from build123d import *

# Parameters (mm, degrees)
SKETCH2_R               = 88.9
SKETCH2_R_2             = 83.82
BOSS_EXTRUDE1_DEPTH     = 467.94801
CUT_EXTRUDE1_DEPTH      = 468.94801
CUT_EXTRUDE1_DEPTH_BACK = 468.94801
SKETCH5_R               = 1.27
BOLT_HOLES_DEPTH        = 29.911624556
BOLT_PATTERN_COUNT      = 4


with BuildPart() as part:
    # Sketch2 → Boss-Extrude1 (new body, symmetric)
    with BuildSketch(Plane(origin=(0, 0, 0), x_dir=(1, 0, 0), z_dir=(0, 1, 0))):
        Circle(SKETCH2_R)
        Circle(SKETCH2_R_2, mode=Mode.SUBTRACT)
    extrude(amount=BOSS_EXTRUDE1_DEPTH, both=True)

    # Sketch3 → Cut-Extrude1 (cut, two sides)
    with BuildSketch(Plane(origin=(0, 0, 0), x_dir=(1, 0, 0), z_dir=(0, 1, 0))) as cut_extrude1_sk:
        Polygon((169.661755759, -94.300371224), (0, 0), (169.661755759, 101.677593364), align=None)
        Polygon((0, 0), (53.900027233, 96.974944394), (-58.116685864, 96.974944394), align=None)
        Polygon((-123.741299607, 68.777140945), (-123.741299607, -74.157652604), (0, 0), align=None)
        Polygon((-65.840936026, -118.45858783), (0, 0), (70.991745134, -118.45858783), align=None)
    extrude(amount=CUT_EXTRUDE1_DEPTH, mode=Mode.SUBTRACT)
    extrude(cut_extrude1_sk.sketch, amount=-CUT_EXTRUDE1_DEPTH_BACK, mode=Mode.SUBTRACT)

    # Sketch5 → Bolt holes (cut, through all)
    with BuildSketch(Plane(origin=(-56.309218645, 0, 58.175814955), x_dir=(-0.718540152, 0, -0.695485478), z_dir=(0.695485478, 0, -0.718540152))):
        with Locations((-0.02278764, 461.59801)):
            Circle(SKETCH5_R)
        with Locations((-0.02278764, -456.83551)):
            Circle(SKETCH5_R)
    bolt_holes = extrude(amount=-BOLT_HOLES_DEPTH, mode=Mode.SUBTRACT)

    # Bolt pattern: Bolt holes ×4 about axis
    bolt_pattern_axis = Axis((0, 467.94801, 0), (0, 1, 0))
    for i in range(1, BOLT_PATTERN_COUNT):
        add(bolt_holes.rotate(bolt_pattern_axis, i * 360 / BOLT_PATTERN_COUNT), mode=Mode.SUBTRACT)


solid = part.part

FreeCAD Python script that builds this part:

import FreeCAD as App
import Part
import Sketcher
from FreeCAD import Vector
Q = App.Units.Quantity

doc = App.newDocument("Part")
body = doc.addObject("PartDesign::Body", "Body")
body.AllowCompound = True

# Sketch on XZ plane
sketch1 = body.newObject("Sketcher::SketchObject", "Sketch")
sketch1.AttachmentSupport = (doc.getObject("XZ_Plane"), [""])
sketch1.MapMode = "FlatFace"
sketch1.addGeometry(Part.Circle(Vector(0, 0, 0), Vector(0, 0, 1), 89), False)
sketch1.addGeometry(Part.Circle(Vector(0, 0, 0), Vector(0, 0, 1), 84), False)
sketch1.addConstraint(Sketcher.Constraint("Coincident", 0, 3, -1, 1))
sketch1.addConstraint(Sketcher.Constraint("Coincident", 1, 3, -1, 1))
sketch1.addConstraint(Sketcher.Constraint("Diameter", 0, Q("7 in")))
sketch1.addConstraint(Sketcher.Constraint("Diameter", 1, Q("6.6 in")))
pad1 = body.newObject("PartDesign::Pad", "Pad")
pad1.Profile = sketch1
pad1.Length = Q("36.8463 in")
pad1.Midplane = True

# Sketch on XZ plane
sketch2 = body.newObject("Sketcher::SketchObject", "Sketch001")
sketch2.AttachmentSupport = (doc.getObject("XZ_Plane"), [""])
sketch2.MapMode = "FlatFace"
sketch2.addGeometry(Part.LineSegment(Vector(0, 0, 0), Vector(170, 94, 0)), False)
sketch2.addGeometry(Part.LineSegment(Vector(170, 94, 0), Vector(170, -102, 0)), False)
sketch2.addGeometry(Part.LineSegment(Vector(170, -102, 0), Vector(0, 0, 0)), False)
sketch2.addGeometry(Part.LineSegment(Vector(0, 0, 0), Vector(54, -97, 0)), False)
sketch2.addGeometry(Part.LineSegment(Vector(54, -97, 0), Vector(-58, -97, 0)), False)
sketch2.addGeometry(Part.LineSegment(Vector(-58, -97, 0), Vector(0, 0, 0)), False)
sketch2.addGeometry(Part.LineSegment(Vector(-124, -69, 0), Vector(-124, 74, 0)), False)
sketch2.addGeometry(Part.LineSegment(Vector(-124, 74, 0), Vector(0, 0, 0)), False)
sketch2.addGeometry(Part.LineSegment(Vector(0, 0, 0), Vector(-124, -69, 0)), False)
sketch2.addGeometry(Part.LineSegment(Vector(0, 0, 0), Vector(-66, 118, 0)), False)
sketch2.addGeometry(Part.LineSegment(Vector(-66, 118, 0), Vector(71, 118, 0)), False)
sketch2.addGeometry(Part.LineSegment(Vector(71, 118, 0), Vector(0, 0, 0)), False)
sketch2.addConstraint(Sketcher.Constraint("Coincident", 0, 2, 1, 1))
sketch2.addConstraint(Sketcher.Constraint("Coincident", 1, 2, 2, 1))
sketch2.addConstraint(Sketcher.Constraint("Coincident", 2, 2, 0, 1))
sketch2.addConstraint(Sketcher.Constraint("Coincident", 3, 2, 4, 1))
sketch2.addConstraint(Sketcher.Constraint("Coincident", 4, 2, 5, 1))
sketch2.addConstraint(Sketcher.Constraint("Coincident", 5, 2, 3, 1))
sketch2.addConstraint(Sketcher.Constraint("Coincident", 6, 2, 7, 1))
sketch2.addConstraint(Sketcher.Constraint("Coincident", 7, 2, 8, 1))
sketch2.addConstraint(Sketcher.Constraint("Coincident", 8, 2, 6, 1))
sketch2.addConstraint(Sketcher.Constraint("Coincident", 9, 2, 10, 1))
sketch2.addConstraint(Sketcher.Constraint("Coincident", 10, 2, 11, 1))
sketch2.addConstraint(Sketcher.Constraint("Coincident", 11, 2, 9, 1))
sketch2.addConstraint(Sketcher.Constraint("Vertical", 1))
sketch2.addConstraint(Sketcher.Constraint("Horizontal", 4))
sketch2.addConstraint(Sketcher.Constraint("Vertical", 6))
sketch2.addConstraint(Sketcher.Constraint("Horizontal", 10))
sketch2.addConstraint(Sketcher.Constraint("Coincident", 2, 2, -1, 1))
sketch2.addConstraint(Sketcher.Constraint("Coincident", 5, 2, -1, 1))
sketch2.addConstraint(Sketcher.Constraint("Coincident", 7, 2, -1, 1))
sketch2.addConstraint(Sketcher.Constraint("Coincident", 11, 2, -1, 1))
sketch2.addConstraint(Sketcher.Constraint("Perpendicular", 0, 3))
sketch2.addConstraint(Sketcher.Constraint("Perpendicular", 2, 5))
sketch2.addConstraint(Sketcher.Constraint("Perpendicular", 5, 7))
sketch2.addConstraint(Sketcher.Constraint("Perpendicular", 3, 8))
sketch2.addConstraint(Sketcher.Constraint("Perpendicular", 8, 9))
sketch2.addConstraint(Sketcher.Constraint("Perpendicular", 7, 11))
sketch2.addConstraint(Sketcher.Constraint("DistanceX", 10, 1, 10, 2, 136.832681))
sketch2.addConstraint(Sketcher.Constraint("DistanceX", 6, 2, -1, 1, 123.7413))
sketch2.addConstraint(Sketcher.Constraint("Distance", 0, 194.107371))
sketch2.addConstraint(Sketcher.Constraint("Distance", 11, 138.102371))
sketch2.addConstraint(Sketcher.Constraint("DistanceX", 4, 2, 4, 1, 112.016713))
sketch2.addConstraint(Sketcher.Constraint("DistanceY", 1, 2, 1, 1, 195.977965))
pocket1 = body.newObject("PartDesign::Pocket", "Pocket")
pocket1.Profile = sketch2
pocket1.Type = "ThroughAll"
pocket1.Midplane = True

# Sketch on an angled plane
sketch3 = body.newObject("Sketcher::SketchObject", "Sketch002")
sketch3.Placement = App.Placement(Vector(-56.309219, 0, 58.175815), App.Rotation(Vector(-0.718540152, 0, -0.695485478), Vector(0, 1, 0), Vector(0.695485478, 0, -0.718540152), "ZXY"))
sketch3.addGeometry(Part.Circle(Vector(0, 461.6, 0), Vector(0, 0, 1), 1.3), False)
sketch3.addGeometry(Part.Circle(Vector(0, -456.8, 0), Vector(0, 0, 1), 1.3), False)
sketch3.addConstraint(Sketcher.Constraint("Equal", 0, 1))
sketch3.addConstraint(Sketcher.Constraint("Vertical", 0, 3, 1, 3))
sketch3.addConstraint(Sketcher.Constraint("Diameter", 0, Q("0.1 in")))
sketch3.addConstraint(Sketcher.Constraint("DistanceY", 1, 3, 0, 3, Q("36.1588 in")))
sketch3.addConstraint(Sketcher.Constraint("DistanceY", -1, 1, 0, 3, 461.59801))
sketch3.addConstraint(Sketcher.Constraint("DistanceX", 0, 3, -1, 1, 0.022788))
pocket2 = body.newObject("PartDesign::Pocket", "Pocket001")
pocket2.Profile = sketch3
pocket2.Type = "ThroughAll"
doc.recompute()

polarpattern = body.newObject("PartDesign::PolarPattern", "PolarPattern")
polarpattern.Originals = [pocket2]
polarpattern.Axis = (doc.getObject("Y_Axis"), [""])
polarpattern.Angle = 360
polarpattern.Occurrences = 4
body.Tip = polarpattern

doc.recompute()
